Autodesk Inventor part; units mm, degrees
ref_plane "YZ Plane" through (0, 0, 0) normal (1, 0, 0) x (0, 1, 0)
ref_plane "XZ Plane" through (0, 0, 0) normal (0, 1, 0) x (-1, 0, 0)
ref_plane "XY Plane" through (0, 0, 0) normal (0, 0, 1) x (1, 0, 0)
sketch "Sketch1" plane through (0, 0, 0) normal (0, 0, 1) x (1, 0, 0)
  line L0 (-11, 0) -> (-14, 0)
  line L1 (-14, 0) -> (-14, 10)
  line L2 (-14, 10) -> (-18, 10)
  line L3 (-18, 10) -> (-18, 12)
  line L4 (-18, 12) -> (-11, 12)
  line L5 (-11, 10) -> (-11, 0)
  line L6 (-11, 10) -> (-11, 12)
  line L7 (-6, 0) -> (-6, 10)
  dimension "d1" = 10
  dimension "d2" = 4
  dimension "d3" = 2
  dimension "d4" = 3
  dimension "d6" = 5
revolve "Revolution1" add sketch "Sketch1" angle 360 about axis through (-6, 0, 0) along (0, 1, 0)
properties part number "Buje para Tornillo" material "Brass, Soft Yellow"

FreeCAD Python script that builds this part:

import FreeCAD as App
import Part
import Sketcher

doc = App.newDocument("Part")
body = doc.addObject("PartDesign::Body", "Body")

# Sketch on XY plane
sketch1 = body.newObject("Sketcher::SketchObject", "Sketch")
sketch1.AttachmentSupport = (doc.getObject("XY_Plane"), [""])
sketch1.MapMode = "FlatFace"
sketch1.addGeometry(Part.LineSegment(App.Vector(-14, 0, 0), App.Vector(-11, 0, 0)), False)
sketch1.addGeometry(Part.LineSegment(App.Vector(-11, 0, 0), App.Vector(-11, 12, 0)), False)
sketch1.addGeometry(Part.LineSegment(App.Vector(-11, 12, 0), App.Vector(-18, 12, 0)), False)
sketch1.addGeometry(Part.LineSegment(App.Vector(-18, 12, 0), App.Vector(-18, 10, 0)), False)
sketch1.addGeometry(Part.LineSegment(App.Vector(-18, 10, 0), App.Vector(-14, 10, 0)), False)
sketch1.addGeometry(Part.LineSegment(App.Vector(-14, 10, 0), App.Vector(-14, 0, 0)), False)
sketch1.addGeometry(Part.LineSegment(App.Vector(-6, 0, 0), App.Vector(-6, 12, 0)), True)  # axis
sketch1.addConstraint(Sketcher.Constraint("Coincident", 0, 2, 1, 1))
sketch1.addConstraint(Sketcher.Constraint("Coincident", 1, 2, 2, 1))
sketch1.addConstraint(Sketcher.Constraint("Coincident", 2, 2, 3, 1))
sketch1.addConstraint(Sketcher.Constraint("Coincident", 3, 2, 4, 1))
sketch1.addConstraint(Sketcher.Constraint("Coincident", 4, 2, 5, 1))
sketch1.addConstraint(Sketcher.Constraint("Coincident", 5, 2, 0, 1))
sketch1.addConstraint(Sketcher.Constraint("Horizontal", 0))
sketch1.addConstraint(Sketcher.Constraint("Vertical", 1))
sketch1.addConstraint(Sketcher.Constraint("Horizontal", 2))
sketch1.addConstraint(Sketcher.Constraint("Vertical", 3))
sketch1.addConstraint(Sketcher.Constraint("Horizontal", 4))
sketch1.addConstraint(Sketcher.Constraint("Vertical", 5))
sketch1.addConstraint(Sketcher.Constraint("Vertical", 6))
sketch1.addConstraint(Sketcher.Constraint("PointOnObject", 0, 2, -1))
sketch1.addConstraint(Sketcher.Constraint("PointOnObject", 6, 1, -1))
sketch1.addConstraint(Sketcher.Constraint("Horizontal", 2, 2, 6, 2))
sketch1.addConstraint(Sketcher.Constraint("DistanceX", 0, 1, 0, 2, 3.0))
sketch1.addConstraint(Sketcher.Constraint("DistanceX", 4, 1, 4, 2, 4.0))
sketch1.addConstraint(Sketcher.Constraint("DistanceY", 3, 2, 3, 1, 2.0))
sketch1.addConstraint(Sketcher.Constraint("DistanceY", 5, 2, 5, 1, 10.0))
sketch1.addConstraint(Sketcher.Constraint("DistanceX", 0, 2, 6, 1, 5.0))
sketch1.addConstraint(Sketcher.Constraint("DistanceX", 0, 2, -1, 1, 11.0))
revolution = body.newObject("PartDesign::Revolution", "Revolution")
revolution.Profile = sketch1
revolution.ReferenceAxis = (sketch1, ["Axis0"])
revolution.Angle = 360

doc.recompute()
